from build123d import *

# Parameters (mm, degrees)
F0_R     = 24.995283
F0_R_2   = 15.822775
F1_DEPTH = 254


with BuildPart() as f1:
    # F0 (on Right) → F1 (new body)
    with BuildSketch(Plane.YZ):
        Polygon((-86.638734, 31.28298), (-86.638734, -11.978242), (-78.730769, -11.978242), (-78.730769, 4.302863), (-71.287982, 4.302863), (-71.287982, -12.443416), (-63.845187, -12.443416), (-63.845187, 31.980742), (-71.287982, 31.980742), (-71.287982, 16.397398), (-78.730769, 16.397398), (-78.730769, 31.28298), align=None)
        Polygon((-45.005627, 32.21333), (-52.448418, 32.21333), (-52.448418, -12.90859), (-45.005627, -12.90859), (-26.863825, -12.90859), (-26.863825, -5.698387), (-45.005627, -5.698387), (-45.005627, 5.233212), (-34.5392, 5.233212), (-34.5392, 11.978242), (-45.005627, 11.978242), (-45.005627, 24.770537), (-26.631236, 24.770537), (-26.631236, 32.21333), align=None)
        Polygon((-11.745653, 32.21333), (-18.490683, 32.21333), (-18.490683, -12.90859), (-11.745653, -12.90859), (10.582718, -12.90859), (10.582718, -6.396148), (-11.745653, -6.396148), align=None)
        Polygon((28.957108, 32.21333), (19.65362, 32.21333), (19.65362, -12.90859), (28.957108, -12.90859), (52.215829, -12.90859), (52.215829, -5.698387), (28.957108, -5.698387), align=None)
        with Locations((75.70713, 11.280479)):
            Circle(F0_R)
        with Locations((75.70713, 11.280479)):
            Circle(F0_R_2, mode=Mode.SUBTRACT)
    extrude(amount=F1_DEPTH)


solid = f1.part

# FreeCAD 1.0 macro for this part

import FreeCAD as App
import Part
import Sketcher
Q = App.Units.Quantity

doc = App.newDocument("Part")
body = doc.addObject("PartDesign::Body", "Body")
body.AllowCompound = True

sketch1 = doc.addObject("Sketcher::SketchObject", "Sketch")
body.addObject(sketch1)
sketch1.AttachmentSupport = (doc.YZ_Plane, [""])
sketch1.MapMode = "FlatFace"
sketch1.addGeometry([
    Part.LineSegment(App.Vector(-86.638734, 31.28298, 0), App.Vector(-86.638734, -11.978242, 0)),
    Part.LineSegment(App.Vector(-86.638734, -11.978242, 0), App.Vector(-78.730769, -11.978242, 0)),
    Part.LineSegment(App.Vector(-78.730769, -11.978242, 0), App.Vector(-78.730769, 4.302863, 0)),
    Part.LineSegment(App.Vector(-78.730769, 4.302863, 0), App.Vector(-71.287982, 4.302863, 0)),
    Part.LineSegment(App.Vector(-71.287982, 4.302863, 0), App.Vector(-71.287982, -12.443416, 0)),
    Part.LineSegment(App.Vector(-71.287982, -12.443416, 0), App.Vector(-63.845187, -12.443416, 0)),
    Part.LineSegment(App.Vector(-63.845187, -12.443416, 0), App.Vector(-63.845187, 31.980742, 0)),
    Part.LineSegment(App.Vector(-63.845187, 31.980742, 0), App.Vector(-71.287982, 31.980742, 0)),
    Part.LineSegment(App.Vector(-71.287982, 31.980742, 0), App.Vector(-71.287982, 16.397398, 0)),
    Part.LineSegment(App.Vector(-71.287982, 16.397398, 0), App.Vector(-78.730769, 16.397398, 0)),
    Part.LineSegment(App.Vector(-78.730769, 16.397398, 0), App.Vector(-78.730769, 31.28298, 0)),
    Part.LineSegment(App.Vector(-78.730769, 31.28298, 0), App.Vector(-86.638734, 31.28298, 0)),
    Part.LineSegment(App.Vector(-52.448418, 32.21333, 0), App.Vector(-52.448418, -12.90859, 0)),
    Part.LineSegment(App.Vector(-52.448418, -12.90859, 0), App.Vector(-26.863825, -12.90859, 0)),
    Part.LineSegment(App.Vector(-26.863825, -12.90859, 0), App.Vector(-26.863825, -5.698387, 0)),
    Part.LineSegment(App.Vector(-26.863825, -5.698387, 0), App.Vector(-45.005627, -5.698387, 0)),
    Part.LineSegment(App.Vector(-45.005627, -5.698387, 0), App.Vector(-45.005627, 5.233212, 0)),
    Part.LineSegment(App.Vector(-45.005627, 5.233212, 0), App.Vector(-34.5392, 5.233212, 0)),
    Part.LineSegment(App.Vector(-34.5392, 5.233212, 0), App.Vector(-34.5392, 11.978242, 0)),
    Part.LineSegment(App.Vector(-34.5392, 11.978242, 0), App.Vector(-45.005627, 11.978242, 0)),
    Part.LineSegment(App.Vector(-45.005627, 11.978242, 0), App.Vector(-45.005627, 24.770537, 0)),
    Part.LineSegment(App.Vector(-45.005627, 24.770537, 0), App.Vector(-26.631236, 24.770537, 0)),
    Part.LineSegment(App.Vector(-26.631236, 24.770537, 0), App.Vector(-26.631236, 32.21333, 0)),
    Part.LineSegment(App.Vector(-26.631236, 32.21333, 0), App.Vector(-52.448418, 32.21333, 0)),
    Part.LineSegment(App.Vector(-11.745653, 32.21333, 0), App.Vector(-18.490683, 32.21333, 0)),
    Part.LineSegment(App.Vector(-18.490683, 32.21333, 0), App.Vector(-18.490683, -12.90859, 0)),
    Part.LineSegment(App.Vector(-18.490683, -12.90859, 0), App.Vector(10.582718, -12.90859, 0)),
    Part.LineSegment(App.Vector(10.582718, -12.90859, 0), App.Vector(10.582718, -6.396148, 0)),
    Part.LineSegment(App.Vector(10.582718, -6.396148, 0), App.Vector(-11.745653, -6.396148, 0)),
    Part.LineSegment(App.Vector(-11.745653, -6.396148, 0), App.Vector(-11.745653, 32.21333, 0)),
    Part.LineSegment(App.Vector(28.957108, 32.21333, 0), App.Vector(19.65362, 32.21333, 0)),
    Part.LineSegment(App.Vector(19.65362, 32.21333, 0), App.Vector(19.65362, -12.90859, 0)),
    Part.LineSegment(App.Vector(19.65362, -12.90859, 0), App.Vector(52.215829, -12.90859, 0)),
    Part.LineSegment(App.Vector(52.215829, -12.90859, 0), App.Vector(52.215829, -5.698387, 0)),
    Part.LineSegment(App.Vector(52.215829, -5.698387, 0), App.Vector(28.957108, -5.698387, 0)),
    Part.LineSegment(App.Vector(28.957108, -5.698387, 0), App.Vector(28.957108, 32.21333, 0)),
    Part.Circle(App.Vector(75.70713, 11.280479, 0), App.Vector(0, 0, 1), 24.995283),
    Part.Circle(App.Vector(75.70713, 11.280479, 0), App.Vector(0, 0, 1), 15.822775),
], False)
sketch1.addConstraint([
    Sketcher.Constraint("Coincident", 0, 2, 1, 1),
    Sketcher.Constraint("Coincident", 1, 2, 2, 1),
    Sketcher.Constraint("Coincident", 2, 2, 3, 1),
    Sketcher.Constraint("Coincident", 3, 2, 4, 1),
    Sketcher.Constraint("Coincident", 4, 2, 5, 1),
    Sketcher.Constraint("Coincident", 5, 2, 6, 1),
    Sketcher.Constraint("Coincident", 6, 2, 7, 1),
    Sketcher.Constraint("Coincident", 7, 2, 8, 1),
    Sketcher.Constraint("Coincident", 8, 2, 9, 1),
    Sketcher.Constraint("Coincident", 9, 2, 10, 1),
    Sketcher.Constraint("Coincident", 10, 2, 11, 1),
    Sketcher.Constraint("Coincident", 11, 2, 0, 1),
    Sketcher.Constraint("Coincident", 12, 2, 13, 1),
    Sketcher.Constraint("Coincident", 13, 2, 14, 1),
    Sketcher.Constraint("Coincident", 14, 2, 15, 1),
    Sketcher.Constraint("Coincident", 15, 2, 16, 1),
    Sketcher.Constraint("Coincident", 16, 2, 17, 1),
    Sketcher.Constraint("Coincident", 17, 2, 18, 1),
    Sketcher.Constraint("Coincident", 18, 2, 19, 1),
    Sketcher.Constraint("Coincident", 19, 2, 20, 1),
    Sketcher.Constraint("Coincident", 20, 2, 21, 1),
    Sketcher.Constraint("Coincident", 21, 2, 22, 1),
    Sketcher.Constraint("Coincident", 22, 2, 23, 1),
    Sketcher.Constraint("Coincident", 23, 2, 12, 1),
    Sketcher.Constraint("Coincident", 24, 2, 25, 1),
    Sketcher.Constraint("Coincident", 25, 2, 26, 1),
    Sketcher.Constraint("Coincident", 26, 2, 27, 1),
    Sketcher.Constraint("Coincident", 27, 2, 28, 1),
    Sketcher.Constraint("Coincident", 28, 2, 29, 1),
    Sketcher.Constraint("Coincident", 29, 2, 24, 1),
    Sketcher.Constraint("Coincident", 30, 2, 31, 1),
    Sketcher.Constraint("Coincident", 31, 2, 32, 1),
    Sketcher.Constraint("Coincident", 32, 2, 33, 1),
    Sketcher.Constraint("Coincident", 33, 2, 34, 1),
    Sketcher.Constraint("Coincident", 34, 2, 35, 1),
    Sketcher.Constraint("Coincident", 35, 2, 30, 1),
    Sketcher.Constraint("Vertical", 0),
    Sketcher.Constraint("Horizontal", 1),
    Sketcher.Constraint("Vertical", 2),
    Sketcher.Constraint("Horizontal", 3),
    Sketcher.Constraint("Vertical", 4),
    Sketcher.Constraint("Horizontal", 5),
    Sketcher.Constraint("Vertical", 6),
    Sketcher.Constraint("Horizontal", 7),
    Sketcher.Constraint("Vertical", 8),
    Sketcher.Constraint("Horizontal", 9),
    Sketcher.Constraint("Vertical", 10),
    Sketcher.Constraint("Horizontal", 11),
    Sketcher.Constraint("Vertical", 12),
    Sketcher.Constraint("Horizontal", 13),
    Sketcher.Constraint("Vertical", 14),
    Sketcher.Constraint("Horizontal", 15),
    Sketcher.Constraint("Vertical", 16),
    Sketcher.Constraint("Horizontal", 17),
    Sketcher.Constraint("Vertical", 18),
    Sketcher.Constraint("Horizontal", 19),
    Sketcher.Constraint("Vertical", 20),
    Sketcher.Constraint("Horizontal", 21),
    Sketcher.Constraint("Vertical", 22),
    Sketcher.Constraint("Horizontal", 23),
    Sketcher.Constraint("Horizontal", 24),
    Sketcher.Constraint("Vertical", 25),
    Sketcher.Constraint("Horizontal", 26),
    Sketcher.Constraint("Vertical", 27),
    Sketcher.Constraint("Horizontal", 28),
    Sketcher.Constraint("Vertical", 29),
    Sketcher.Constraint("Horizontal", 30),
    Sketcher.Constraint("Vertical", 31),
    Sketcher.Constraint("Horizontal", 32),
    Sketcher.Constraint("Vertical", 33),
    Sketcher.Constraint("Horizontal", 34),
    Sketcher.Constraint("Vertical", 35),
    Sketcher.Constraint("Coincident", 37, 3, 36, 3),
    Sketcher.Constraint("Horizontal", 23, 2, 24, 2),
    Sketcher.Constraint("Horizontal", 13, 2, 25, 2),
    Sketcher.Constraint("Horizontal", 29, 2, 30, 2),
    Sketcher.Constraint("Horizontal", 26, 2, 31, 2),
    Sketcher.Constraint("Horizontal", 15, 2, 33, 2),
    Sketcher.Constraint("Vertical", 4, 2, 7, 2),
    Sketcher.Constraint("Vertical", 2, 2, 9, 2),
    Sketcher.Constraint("Vertical", 16, 2, 19, 2),
    Sketcher.Constraint("Equal", 24, 18),
    Sketcher.Constraint("Equal", 7, 22),
    Sketcher.Constraint("Diameter", 37, 31.64555),
    Sketcher.Constraint("Diameter", 36, 49.990566),
    Sketcher.Constraint("DistanceX", 15, 2, 15, 1, 18.141802),
    Sketcher.Constraint("DistanceX", 26, 1, 26, 2, 29.073401),
    Sketcher.Constraint("DistanceY", 16, 1, 16, 2, 10.931599),
    Sketcher.Constraint("DistanceX", 21, 1, 21, 2, 18.374391),
    Sketcher.Constraint("DistanceX", 23, 2, 23, 1, 25.817182),
    Sketcher.Constraint("DistanceX", 24, 2, 24, 1, 6.74503),
    Sketcher.Constraint("DistanceX", 30, 2, 30, 1, 9.303488),
    Sketcher.Constraint("DistanceX", 32, 1, 32, 2, 32.562209),
    Sketcher.Constraint("DistanceY", 0, 2, 0, 1, 43.261222),
    Sketcher.Constraint("DistanceY", 4, 2, 4, 1, 16.746279),
    Sketcher.Constraint("DistanceY", 12, 2, 12, 1, 45.12192),
    Sketcher.Constraint("DistanceX", 17, 2, -1, 1, 34.5392),
    Sketcher.Constraint("DistanceX", 1, 2, 36, 3, 154.437899),
    Sketcher.Constraint("DistanceY", 12, 2, 16, 2, 18.141802),
    Sketcher.Constraint("DistanceX", 32, 2, 36, 3, 23.491301),
    Sketcher.Constraint("DistanceX", 1, 1, 1, 2, 7.907965),
    Sketcher.Constraint("DistanceX", 3, 1, 3, 2, 7.442787),
    Sketcher.Constraint("DistanceX", 5, 1, 5, 2, 7.442795),
    Sketcher.Constraint("DistanceX", 17, 1, 17, 2, 10.466427),
    Sketcher.Constraint("DistanceY", 2, 1, 2, 2, 16.281105),
    Sketcher.Constraint("DistanceY", 6, 1, 6, 2, 44.424158),
    Sketcher.Constraint("DistanceY", 8, 2, 8, 1, 15.583344),
    Sketcher.Constraint("DistanceY", 27, 1, 27, 2, 6.512442),
    Sketcher.Constraint("DistanceX", -1, 1, 36, 3, 75.70713),
    Sketcher.Constraint("DistanceY", -1, 1, 36, 3, 11.280479),
    Sketcher.Constraint("DistanceY", -1, 1, 6, 2, 31.980742),
    Sketcher.Constraint("DistanceY", 12, 2, -1, 1, 12.90859),
    Sketcher.Constraint("DistanceX", 13, 2, 25, 2, 8.373142),
])
pad1 = doc.addObject("PartDesign::Pad", "Pad")
body.addObject(pad1)
pad1.Profile = sketch1
pad1.Length = Q("10 in")

doc.recompute()
